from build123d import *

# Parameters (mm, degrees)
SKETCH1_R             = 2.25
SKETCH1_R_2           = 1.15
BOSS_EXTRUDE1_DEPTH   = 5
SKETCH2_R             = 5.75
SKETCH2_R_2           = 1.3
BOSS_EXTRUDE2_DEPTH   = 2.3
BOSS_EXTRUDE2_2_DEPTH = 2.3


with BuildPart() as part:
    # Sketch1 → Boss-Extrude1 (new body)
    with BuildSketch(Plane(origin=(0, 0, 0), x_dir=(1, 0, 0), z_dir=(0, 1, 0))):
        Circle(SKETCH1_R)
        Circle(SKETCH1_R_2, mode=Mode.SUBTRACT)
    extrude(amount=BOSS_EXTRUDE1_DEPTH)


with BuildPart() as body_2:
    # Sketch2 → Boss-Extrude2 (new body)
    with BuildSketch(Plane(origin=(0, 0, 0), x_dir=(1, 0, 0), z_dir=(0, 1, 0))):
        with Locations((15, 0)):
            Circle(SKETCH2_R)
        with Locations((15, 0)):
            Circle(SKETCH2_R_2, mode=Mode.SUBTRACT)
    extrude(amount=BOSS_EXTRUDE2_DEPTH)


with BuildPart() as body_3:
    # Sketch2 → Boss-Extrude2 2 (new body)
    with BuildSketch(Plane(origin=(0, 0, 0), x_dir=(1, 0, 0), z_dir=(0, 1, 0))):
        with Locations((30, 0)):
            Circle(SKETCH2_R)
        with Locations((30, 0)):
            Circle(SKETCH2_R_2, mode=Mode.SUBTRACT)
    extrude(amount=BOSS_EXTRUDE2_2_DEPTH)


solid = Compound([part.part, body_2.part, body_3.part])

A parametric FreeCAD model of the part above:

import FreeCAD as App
import Part
import Sketcher

V = App.Vector

doc = App.newDocument("Part")
body = doc.addObject("PartDesign::Body", "Body")

# Sketch on XZ plane
sketch1 = body.newObject("Sketcher::SketchObject", "Sketch")
sketch1.AttachmentSupport = (doc.getObject("XZ_Plane"), [""])
sketch1.MapMode = "FlatFace"
sketch1.addGeometry(Part.Circle(V(0, 0, 0), V(0, 0, 1), 2.25), False)
sketch1.addGeometry(Part.Circle(V(0, 0, 0), V(0, 0, 1), 1.15), False)
sketch1.addConstraint(Sketcher.Constraint("Coincident", 0, 3, -1, 1))
sketch1.addConstraint(Sketcher.Constraint("Coincident", 1, 3, -1, 1))
sketch1.addConstraint(Sketcher.Constraint("Diameter", 0, 4.5))
sketch1.addConstraint(Sketcher.Constraint("Diameter", 1, 2.3))
pad1 = body.newObject("PartDesign::Pad", "Pad")
pad1.Profile = sketch1
pad1.Length = 5
pad1.Reversed = True
body2 = doc.addObject("PartDesign::Body", "Body001")

# Sketch on XZ plane
sketch2 = body2.newObject("Sketcher::SketchObject", "Sketch001")
sketch2.AttachmentSupport = (doc.getObject("XZ_Plane001"), [""])
sketch2.MapMode = "FlatFace"
sketch2.addGeometry(Part.Circle(V(15, 0, 0), V(0, 0, 1), 5.75), False)
sketch2.addGeometry(Part.Circle(V(15, 0, 0), V(0, 0, 1), 1.3), False)
sketch2.addConstraint(Sketcher.Constraint("Coincident", 1, 3, 0, 3))
sketch2.addConstraint(Sketcher.Constraint("PointOnObject", 0, 3, -1))
sketch2.addConstraint(Sketcher.Constraint("Diameter", 0, 11.5))
sketch2.addConstraint(Sketcher.Constraint("Diameter", 1, 2.6))
sketch2.addConstraint(Sketcher.Constraint("DistanceX", -1, 1, 0, 3, 15.0))
pad2 = body2.newObject("PartDesign::Pad", "Pad001")
pad2.Profile = sketch2
pad2.Length = 2.3
pad2.Reversed = True
body3 = doc.addObject("PartDesign::Body", "Body002")

# Sketch on XZ plane
sketch3 = body3.newObject("Sketcher::SketchObject", "Sketch002")
sketch3.AttachmentSupport = (doc.getObject("XZ_Plane002"), [""])
sketch3.MapMode = "FlatFace"
sketch3.addGeometry(Part.Circle(V(30, 0, 0), V(0, 0, 1), 5.75), False)
sketch3.addGeometry(Part.Circle(V(30, 0, 0), V(0, 0, 1), 1.3), False)
sketch3.addConstraint(Sketcher.Constraint("Coincident", 1, 3, 0, 3))
sketch3.addConstraint(Sketcher.Constraint("PointOnObject", 0, 3, -1))
sketch3.addConstraint(Sketcher.Constraint("Diameter", 0, 11.5))
sketch3.addConstraint(Sketcher.Constraint("Diameter", 1, 2.6))
sketch3.addConstraint(Sketcher.Constraint("DistanceX", -1, 1, 0, 3, 30.0))
pad3 = body3.newObject("PartDesign::Pad", "Pad002")
pad3.Profile = sketch3
pad3.Length = 2.3
pad3.Reversed = True

doc.recompute()
